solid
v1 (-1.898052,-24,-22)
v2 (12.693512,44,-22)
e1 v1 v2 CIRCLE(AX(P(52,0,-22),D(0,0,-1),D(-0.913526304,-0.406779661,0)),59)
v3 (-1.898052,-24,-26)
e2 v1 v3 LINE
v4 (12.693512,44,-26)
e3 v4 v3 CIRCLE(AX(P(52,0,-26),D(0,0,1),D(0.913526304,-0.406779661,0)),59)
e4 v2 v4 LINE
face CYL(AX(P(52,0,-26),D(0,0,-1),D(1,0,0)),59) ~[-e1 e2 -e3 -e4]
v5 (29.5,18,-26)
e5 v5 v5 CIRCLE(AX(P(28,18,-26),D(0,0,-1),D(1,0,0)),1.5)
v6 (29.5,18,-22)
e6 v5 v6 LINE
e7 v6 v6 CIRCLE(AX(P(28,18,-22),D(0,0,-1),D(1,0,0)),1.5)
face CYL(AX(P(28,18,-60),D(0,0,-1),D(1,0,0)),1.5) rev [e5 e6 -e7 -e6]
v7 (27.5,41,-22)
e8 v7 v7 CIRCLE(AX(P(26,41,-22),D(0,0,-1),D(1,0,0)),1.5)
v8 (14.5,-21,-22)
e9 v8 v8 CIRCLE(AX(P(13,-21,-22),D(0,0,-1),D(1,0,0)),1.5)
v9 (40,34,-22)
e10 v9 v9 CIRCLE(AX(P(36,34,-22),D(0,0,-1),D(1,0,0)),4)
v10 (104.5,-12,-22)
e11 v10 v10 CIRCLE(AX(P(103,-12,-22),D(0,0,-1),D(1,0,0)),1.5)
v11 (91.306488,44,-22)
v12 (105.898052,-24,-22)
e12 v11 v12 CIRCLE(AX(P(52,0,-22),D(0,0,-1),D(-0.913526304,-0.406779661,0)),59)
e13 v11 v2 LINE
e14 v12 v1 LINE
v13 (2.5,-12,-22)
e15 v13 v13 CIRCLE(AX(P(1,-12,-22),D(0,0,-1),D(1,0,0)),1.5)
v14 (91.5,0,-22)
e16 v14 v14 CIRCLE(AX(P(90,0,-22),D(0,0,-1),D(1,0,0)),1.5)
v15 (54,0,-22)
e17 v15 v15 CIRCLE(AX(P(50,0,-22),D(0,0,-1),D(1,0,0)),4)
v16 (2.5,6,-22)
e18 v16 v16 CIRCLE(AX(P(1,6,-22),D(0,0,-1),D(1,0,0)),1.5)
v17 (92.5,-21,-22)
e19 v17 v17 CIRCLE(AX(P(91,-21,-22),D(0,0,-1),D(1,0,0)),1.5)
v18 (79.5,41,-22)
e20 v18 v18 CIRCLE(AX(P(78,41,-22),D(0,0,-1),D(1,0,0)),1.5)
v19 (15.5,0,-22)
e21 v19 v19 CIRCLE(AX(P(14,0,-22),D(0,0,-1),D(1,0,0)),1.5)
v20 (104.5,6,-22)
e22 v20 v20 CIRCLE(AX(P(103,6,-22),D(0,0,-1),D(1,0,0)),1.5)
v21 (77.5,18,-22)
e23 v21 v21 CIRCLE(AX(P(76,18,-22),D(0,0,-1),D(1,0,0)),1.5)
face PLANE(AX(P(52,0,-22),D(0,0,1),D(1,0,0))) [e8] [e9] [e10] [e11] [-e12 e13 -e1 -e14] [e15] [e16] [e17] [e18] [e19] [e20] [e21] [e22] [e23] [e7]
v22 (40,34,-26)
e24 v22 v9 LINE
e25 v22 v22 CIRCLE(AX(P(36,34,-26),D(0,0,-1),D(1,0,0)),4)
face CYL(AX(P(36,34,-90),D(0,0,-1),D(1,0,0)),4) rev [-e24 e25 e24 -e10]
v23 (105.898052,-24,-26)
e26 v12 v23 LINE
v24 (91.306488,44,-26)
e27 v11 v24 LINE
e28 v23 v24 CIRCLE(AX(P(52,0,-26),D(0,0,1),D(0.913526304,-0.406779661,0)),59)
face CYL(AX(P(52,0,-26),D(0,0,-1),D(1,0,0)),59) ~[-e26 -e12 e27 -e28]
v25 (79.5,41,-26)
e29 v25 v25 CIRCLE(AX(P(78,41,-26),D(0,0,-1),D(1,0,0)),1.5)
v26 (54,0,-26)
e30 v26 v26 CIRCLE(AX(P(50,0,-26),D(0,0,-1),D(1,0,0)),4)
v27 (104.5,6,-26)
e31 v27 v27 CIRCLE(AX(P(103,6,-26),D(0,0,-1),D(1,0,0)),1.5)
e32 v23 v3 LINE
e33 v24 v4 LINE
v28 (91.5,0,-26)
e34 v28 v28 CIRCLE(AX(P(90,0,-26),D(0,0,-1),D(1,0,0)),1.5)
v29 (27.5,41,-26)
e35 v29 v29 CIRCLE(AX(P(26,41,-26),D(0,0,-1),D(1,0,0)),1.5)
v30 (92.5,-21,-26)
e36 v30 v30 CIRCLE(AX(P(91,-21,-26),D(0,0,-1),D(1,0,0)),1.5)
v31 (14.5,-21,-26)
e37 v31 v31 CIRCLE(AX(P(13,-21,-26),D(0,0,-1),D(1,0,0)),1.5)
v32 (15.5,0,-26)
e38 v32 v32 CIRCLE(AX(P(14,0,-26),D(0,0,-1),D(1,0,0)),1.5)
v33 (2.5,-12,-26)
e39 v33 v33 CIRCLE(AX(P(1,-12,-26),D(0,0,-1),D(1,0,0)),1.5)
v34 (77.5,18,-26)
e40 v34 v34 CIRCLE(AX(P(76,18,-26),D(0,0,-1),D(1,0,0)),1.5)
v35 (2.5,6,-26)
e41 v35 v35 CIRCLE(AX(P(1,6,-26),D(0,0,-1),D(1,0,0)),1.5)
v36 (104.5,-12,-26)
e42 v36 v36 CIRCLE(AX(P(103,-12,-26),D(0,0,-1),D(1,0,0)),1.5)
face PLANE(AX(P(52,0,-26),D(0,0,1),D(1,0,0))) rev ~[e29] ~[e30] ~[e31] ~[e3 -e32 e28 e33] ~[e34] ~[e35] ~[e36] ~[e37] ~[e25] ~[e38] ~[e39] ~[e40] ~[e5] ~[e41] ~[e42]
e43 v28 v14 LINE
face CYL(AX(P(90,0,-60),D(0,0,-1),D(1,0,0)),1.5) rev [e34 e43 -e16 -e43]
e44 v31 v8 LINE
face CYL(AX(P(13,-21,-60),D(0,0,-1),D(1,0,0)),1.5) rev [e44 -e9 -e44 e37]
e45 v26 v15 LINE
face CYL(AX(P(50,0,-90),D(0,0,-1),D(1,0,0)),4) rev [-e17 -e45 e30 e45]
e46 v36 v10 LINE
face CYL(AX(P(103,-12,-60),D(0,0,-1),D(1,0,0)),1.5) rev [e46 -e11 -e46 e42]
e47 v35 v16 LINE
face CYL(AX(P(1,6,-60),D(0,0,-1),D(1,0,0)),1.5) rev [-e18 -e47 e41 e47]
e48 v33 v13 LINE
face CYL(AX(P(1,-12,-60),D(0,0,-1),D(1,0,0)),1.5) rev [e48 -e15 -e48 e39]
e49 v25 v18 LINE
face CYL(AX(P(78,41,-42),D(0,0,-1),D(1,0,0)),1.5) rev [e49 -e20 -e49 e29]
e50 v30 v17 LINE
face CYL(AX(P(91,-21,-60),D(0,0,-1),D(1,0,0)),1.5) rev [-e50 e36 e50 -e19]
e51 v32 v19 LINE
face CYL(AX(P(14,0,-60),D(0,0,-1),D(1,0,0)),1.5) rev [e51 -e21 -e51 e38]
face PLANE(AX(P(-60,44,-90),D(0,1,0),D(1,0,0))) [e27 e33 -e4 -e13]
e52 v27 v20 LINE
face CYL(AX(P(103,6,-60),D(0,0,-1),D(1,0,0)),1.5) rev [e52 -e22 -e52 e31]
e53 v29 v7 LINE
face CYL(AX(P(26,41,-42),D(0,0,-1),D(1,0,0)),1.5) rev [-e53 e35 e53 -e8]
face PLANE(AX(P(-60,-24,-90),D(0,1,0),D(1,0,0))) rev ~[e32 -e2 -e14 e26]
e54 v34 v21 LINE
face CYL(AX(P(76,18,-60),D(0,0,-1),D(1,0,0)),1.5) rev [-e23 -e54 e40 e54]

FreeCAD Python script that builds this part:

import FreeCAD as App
import Part
import Sketcher
from FreeCAD import Vector
Q = App.Units.Quantity

doc = App.newDocument("Part")
body = doc.addObject("PartDesign::Body", "Body")

# Sketch on XY plane
sketch1 = doc.addObject("Sketcher::SketchObject", "Sketch")
body.addObject(sketch1)
sketch1.AttachmentSupport = (doc.XY_Plane, [""])
sketch1.MapMode = "FlatFace"
sketch1.AttachmentOffset = App.Placement(Vector(0, 0, -60), App.Rotation())
sketch1.addGeometry(Part.Circle(Vector(14, 0, 0), Vector(0, 0, 1), 1.5), False)
sketch1.addConstraint([
    Sketcher.Constraint("PointOnObject", 0, 3, -1),
    Sketcher.Constraint("Diameter", 0, Q("3 mm")),
    Sketcher.Constraint("DistanceX", -1, 1, 0, 3, Q("14 mm")),
])
pad1 = doc.addObject("PartDesign::Pad", "Pad")
body.addObject(pad1)
pad1.Profile = sketch1
pad1.Length = 100
body2 = doc.addObject("PartDesign::Body", "Body001")
body2.AllowCompound = True

# Sketch on XY plane
sketch2 = doc.addObject("Sketcher::SketchObject", "Sketch001")
body2.addObject(sketch2)
sketch2.AttachmentSupport = (doc.getObject("XY_Plane001"), [""])
sketch2.MapMode = "FlatFace"
sketch2.AttachmentOffset = App.Placement(Vector(0, 0, -60), App.Rotation())
sketch2.addGeometry(Part.Circle(Vector(90, 0, 0), Vector(0, 0, 1), 1.5), False)
sketch2.addConstraint([
    Sketcher.Constraint("PointOnObject", 0, 3, -1),
    Sketcher.Constraint("Diameter", 0, Q("3 mm")),
    Sketcher.Constraint("DistanceX", -1, 1, 0, 3, Q("90 mm")),
])
pad2 = doc.addObject("PartDesign::Pad", "Pad001")
body2.addObject(pad2)
pad2.Profile = sketch2
pad2.Length = 100
doc.recompute()

boolean = doc.addObject("PartDesign::Boolean", "Boolean")
body2.addObject(boolean)
boolean.Type = "Fuse"
boolean.addObjects([body])
body3 = doc.addObject("PartDesign::Body", "Body002")

# Sketch on XY plane
sketch3 = doc.addObject("Sketcher::SketchObject", "Sketch002")
body3.addObject(sketch3)
sketch3.AttachmentSupport = (doc.getObject("XY_Plane002"), [""])
sketch3.MapMode = "FlatFace"
sketch3.AttachmentOffset = App.Placement(Vector(0, 0, -42), App.Rotation())
sketch3.addGeometry(Part.Circle(Vector(78, 41, 0), Vector(0, 0, 1), 1.5), False)
sketch3.addConstraint([
    Sketcher.Constraint("Diameter", 0, Q("3 mm")),
    Sketcher.Constraint("DistanceX", -1, 1, 0, 3, Q("78 mm")),
    Sketcher.Constraint("DistanceY", -1, 1, 0, 3, Q("41 mm")),
])
pad3 = doc.addObject("PartDesign::Pad", "Pad002")
body3.addObject(pad3)
pad3.Profile = sketch3
pad3.Length = 32
body4 = doc.addObject("PartDesign::Body", "Body003")
body4.AllowCompound = True

# Sketch on XY plane
sketch4 = doc.addObject("Sketcher::SketchObject", "Sketch003")
body4.addObject(sketch4)
sketch4.AttachmentSupport = (doc.getObject("XY_Plane003"), [""])
sketch4.MapMode = "FlatFace"
sketch4.AttachmentOffset = App.Placement(Vector(0, 0, -42), App.Rotation())
sketch4.addGeometry(Part.Circle(Vector(26, 41, 0), Vector(0, 0, 1), 1.5), False)
sketch4.addConstraint([
    Sketcher.Constraint("Diameter", 0, Q("3 mm")),
    Sketcher.Constraint("DistanceX", -1, 1, 0, 3, Q("26 mm")),
    Sketcher.Constraint("DistanceY", -1, 1, 0, 3, Q("41 mm")),
])
pad4 = doc.addObject("PartDesign::Pad", "Pad003")
body4.addObject(pad4)
pad4.Profile = sketch4
pad4.Length = 32
doc.recompute()

boolean2 = doc.addObject("PartDesign::Boolean", "Boolean001")
body4.addObject(boolean2)
boolean2.Type = "Fuse"
boolean2.addObjects([body3])
body5 = doc.addObject("PartDesign::Body", "Body004")

# Sketch on XY plane
sketch5 = doc.addObject("Sketcher::SketchObject", "Sketch004")
body5.addObject(sketch5)
sketch5.AttachmentSupport = (doc.getObject("XY_Plane004"), [""])
sketch5.MapMode = "FlatFace"
sketch5.AttachmentOffset = App.Placement(Vector(0, 0, -90), App.Rotation())
sketch5.addGeometry([
    Part.LineSegment(Vector(-60, 144, 0), Vector(-60, 44, 0)),
    Part.LineSegment(Vector(-60, 44, 0), Vector(140, 44, 0)),
    Part.LineSegment(Vector(140, 44, 0), Vector(140, 144, 0)),
    Part.LineSegment(Vector(140, 144, 0), Vector(-60, 144, 0)),
], False)
sketch5.addConstraint([
    Sketcher.Constraint("Coincident", 0, 2, 1, 1),
    Sketcher.Constraint("Coincident", 1, 2, 2, 1),
    Sketcher.Constraint("Coincident", 2, 2, 3, 1),
    Sketcher.Constraint("Coincident", 3, 2, 0, 1),
    Sketcher.Constraint("Vertical", 0),
    Sketcher.Constraint("Horizontal", 1),
    Sketcher.Constraint("Vertical", 2),
    Sketcher.Constraint("Horizontal", 3),
    Sketcher.Constraint("DistanceX", 1, 1, 1, 2, Q("200 mm")),
    Sketcher.Constraint("DistanceY", 0, 2, 0, 1, Q("100 mm")),
    Sketcher.Constraint("DistanceX", 0, 2, -1, 1, Q("60 mm")),
    Sketcher.Constraint("DistanceY", -1, 1, 0, 2, Q("44 mm")),
])
pad5 = doc.addObject("PartDesign::Pad", "Pad004")
body5.addObject(pad5)
pad5.Profile = sketch5
pad5.Length = 100
body6 = doc.addObject("PartDesign::Body", "Body005")

# Sketch on XY plane
sketch6 = doc.addObject("Sketcher::SketchObject", "Sketch005")
body6.addObject(sketch6)
sketch6.AttachmentSupport = (doc.getObject("XY_Plane005"), [""])
sketch6.MapMode = "FlatFace"
sketch6.AttachmentOffset = App.Placement(Vector(0, 0, -90), App.Rotation())
sketch6.addGeometry([
    Part.LineSegment(Vector(-60, -24, 0), Vector(-60, -124, 0)),
    Part.LineSegment(Vector(-60, -124, 0), Vector(140, -124, 0)),
    Part.LineSegment(Vector(140, -124, 0), Vector(140, -24, 0)),
    Part.LineSegment(Vector(140, -24, 0), Vector(-60, -24, 0)),
], False)
sketch6.addConstraint([
    Sketcher.Constraint("Coincident", 0, 2, 1, 1),
    Sketcher.Constraint("Coincident", 1, 2, 2, 1),
    Sketcher.Constraint("Coincident", 2, 2, 3, 1),
    Sketcher.Constraint("Coincident", 3, 2, 0, 1),
    Sketcher.Constraint("Vertical", 0),
    Sketcher.Constraint("Horizontal", 1),
    Sketcher.Constraint("Vertical", 2),
    Sketcher.Constraint("Horizontal", 3),
    Sketcher.Constraint("DistanceX", 1, 1, 1, 2, Q("200 mm")),
    Sketcher.Constraint("DistanceY", 0, 2, 0, 1, Q("100 mm")),
    Sketcher.Constraint("DistanceX", 0, 2, -1, 1, Q("60 mm")),
    Sketcher.Constraint("DistanceY", 0, 2, -1, 1, Q("124 mm")),
])
pad6 = doc.addObject("PartDesign::Pad", "Pad005")
body6.addObject(pad6)
pad6.Profile = sketch6
pad6.Length = 100
body7 = doc.addObject("PartDesign::Body", "Body006")

# Sketch on XY plane
sketch7 = doc.addObject("Sketcher::SketchObject", "Sketch006")
body7.addObject(sketch7)
sketch7.AttachmentSupport = (doc.getObject("XY_Plane006"), [""])
sketch7.MapMode = "FlatFace"
sketch7.AttachmentOffset = App.Placement(Vector(0, 0, -90), App.Rotation())
sketch7.addGeometry(Part.Circle(Vector(-36, 34, 0), Vector(0, 0, 1), 4), False)
sketch7.addConstraint([
    Sketcher.Constraint("Diameter", 0, Q("8 mm")),
    Sketcher.Constraint("DistanceX", 0, 3, -1, 1, Q("36 mm")),
    Sketcher.Constraint("DistanceY", -1, 1, 0, 3, Q("34 mm")),
])
pad7 = doc.addObject("PartDesign::Pad", "Pad006")
body7.addObject(pad7)
pad7.Profile = sketch7
pad7.Length = 100
body8 = doc.addObject("PartDesign::Body", "Body007")

# Sketch on XY plane
sketch8 = doc.addObject("Sketcher::SketchObject", "Sketch007")
body8.addObject(sketch8)
sketch8.AttachmentSupport = (doc.getObject("XY_Plane007"), [""])
sketch8.MapMode = "FlatFace"
sketch8.AttachmentOffset = App.Placement(Vector(0, 0, -90), App.Rotation())
sketch8.addGeometry(Part.Circle(Vector(-36, -34, 0), Vector(0, 0, 1), 4), False)
sketch8.addConstraint([
    Sketcher.Constraint("Diameter", 0, Q("8 mm")),
    Sketcher.Constraint("DistanceX", 0, 3, -1, 1, Q("36 mm")),
    Sketcher.Constraint("DistanceY", 0, 3, -1, 1, Q("34 mm")),
])
pad8 = doc.addObject("PartDesign::Pad", "Pad007")
body8.addObject(pad8)
pad8.Profile = sketch8
pad8.Length = 100
body9 = doc.addObject("PartDesign::Body", "Body008")

# Sketch on XY plane
sketch9 = doc.addObject("Sketcher::SketchObject", "Sketch008")
body9.addObject(sketch9)
sketch9.AttachmentSupport = (doc.getObject("XY_Plane008"), [""])
sketch9.MapMode = "FlatFace"
sketch9.AttachmentOffset = App.Placement(Vector(0, 0, -90), App.Rotation())
sketch9.addGeometry(Part.Circle(Vector(50, 0, 0), Vector(0, 0, 1), 4), False)
sketch9.addConstraint([
    Sketcher.Constraint("PointOnObject", 0, 3, -1),
    Sketcher.Constraint("Diameter", 0, Q("8 mm")),
    Sketcher.Constraint("DistanceX", -1, 1, 0, 3, Q("50 mm")),
])
pad9 = doc.addObject("PartDesign::Pad", "Pad008")
body9.addObject(pad9)
pad9.Profile = sketch9
pad9.Length = 100
body10 = doc.addObject("PartDesign::Body", "Body009")

# Sketch on XY plane
sketch10 = doc.addObject("Sketcher::SketchObject", "Sketch009")
body10.addObject(sketch10)
sketch10.AttachmentSupport = (doc.getObject("XY_Plane009"), [""])
sketch10.MapMode = "FlatFace"
sketch10.AttachmentOffset = App.Placement(Vector(0, 0, -90), App.Rotation())
sketch10.addGeometry(Part.Circle(Vector(36, 34, 0), Vector(0, 0, 1), 4), False)
sketch10.addConstraint([
    Sketcher.Constraint("Diameter", 0, Q("8 mm")),
    Sketcher.Constraint("DistanceX", -1, 1, 0, 3, Q("36 mm")),
    Sketcher.Constraint("DistanceY", -1, 1, 0, 3, Q("34 mm")),
])
pad10 = doc.addObject("PartDesign::Pad", "Pad009")
body10.addObject(pad10)
pad10.Profile = sketch10
pad10.Length = 100
body11 = doc.addObject("PartDesign::Body", "Body010")

# Sketch on XY plane
sketch11 = doc.addObject("Sketcher::SketchObject", "Sketch010")
body11.addObject(sketch11)
sketch11.AttachmentSupport = (doc.getObject("XY_Plane010"), [""])
sketch11.MapMode = "FlatFace"
sketch11.AttachmentOffset = App.Placement(Vector(0, 0, -90), App.Rotation())
sketch11.addGeometry(Part.Circle(Vector(36, -34, 0), Vector(0, 0, 1), 4), False)
sketch11.addConstraint([
    Sketcher.Constraint("Diameter", 0, Q("8 mm")),
    Sketcher.Constraint("DistanceX", -1, 1, 0, 3, Q("36 mm")),
    Sketcher.Constraint("DistanceY", 0, 3, -1, 1, Q("34 mm")),
])
pad11 = doc.addObject("PartDesign::Pad", "Pad010")
body11.addObject(pad11)
pad11.Profile = sketch11
pad11.Length = 100
body12 = doc.addObject("PartDesign::Body", "Body011")
body12.AllowCompound = True

# Sketch on XY plane
sketch12 = doc.addObject("Sketcher::SketchObject", "Sketch011")
body12.addObject(sketch12)
sketch12.AttachmentSupport = (doc.getObject("XY_Plane011"), [""])
sketch12.MapMode = "FlatFace"
sketch12.AttachmentOffset = App.Placement(Vector(0, 0, -90), App.Rotation())
sketch12.addGeometry(Part.Circle(Vector(-50, 0, 0), Vector(0, 0, 1), 4), False)
sketch12.addConstraint([
    Sketcher.Constraint("PointOnObject", 0, 3, -1),
    Sketcher.Constraint("Diameter", 0, Q("8 mm")),
    Sketcher.Constraint("DistanceX", 0, 3, -1, 1, Q("50 mm")),
])
pad12 = doc.addObject("PartDesign::Pad", "Pad011")
body12.addObject(pad12)
pad12.Profile = sketch12
pad12.Length = 100
doc.recompute()

boolean3 = doc.addObject("PartDesign::Boolean", "Boolean002")
body12.addObject(boolean3)
boolean3.Type = "Fuse"
boolean3.addObjects([body7])
doc.recompute()

boolean4 = doc.addObject("PartDesign::Boolean", "Boolean003")
body12.addObject(boolean4)
boolean4.Type = "Fuse"
boolean4.addObjects([body8])
doc.recompute()

boolean5 = doc.addObject("PartDesign::Boolean", "Boolean004")
body12.addObject(boolean5)
boolean5.Type = "Fuse"
boolean5.addObjects([body9])
doc.recompute()

boolean6 = doc.addObject("PartDesign::Boolean", "Boolean005")
body12.addObject(boolean6)
boolean6.Type = "Fuse"
boolean6.addObjects([body10])
doc.recompute()

boolean7 = doc.addObject("PartDesign::Boolean", "Boolean006")
body12.addObject(boolean7)
boolean7.Type = "Fuse"
boolean7.addObjects([body11])
body13 = doc.addObject("PartDesign::Body", "Body012")

# Sketch on XY plane
sketch13 = doc.addObject("Sketcher::SketchObject", "Sketch012")
body13.addObject(sketch13)
sketch13.AttachmentSupport = (doc.getObject("XY_Plane012"), [""])
sketch13.MapMode = "FlatFace"
sketch13.AttachmentOffset = App.Placement(Vector(0, 0, -60), App.Rotation())
sketch13.addGeometry(Part.Circle(Vector(103, 6, 0), Vector(0, 0, 1), 1.5), False)
sketch13.addConstraint([
    Sketcher.Constraint("Diameter", 0, Q("3 mm")),
    Sketcher.Constraint("DistanceX", -1, 1, 0, 3, Q("103 mm")),
    Sketcher.Constraint("DistanceY", -1, 1, 0, 3, Q("6 mm")),
])
pad13 = doc.addObject("PartDesign::Pad", "Pad012")
body13.addObject(pad13)
pad13.Profile = sketch13
pad13.Length = 100
body14 = doc.addObject("PartDesign::Body", "Body013")

# Sketch on XY plane
sketch14 = doc.addObject("Sketcher::SketchObject", "Sketch013")
body14.addObject(sketch14)
sketch14.AttachmentSupport = (doc.getObject("XY_Plane013"), [""])
sketch14.MapMode = "FlatFace"
sketch14.AttachmentOffset = App.Placement(Vector(0, 0, -60), App.Rotation())
sketch14.addGeometry(Part.Circle(Vector(76, 18, 0), Vector(0, 0, 1), 1.5), False)
sketch14.addConstraint([
    Sketcher.Constraint("Diameter", 0, Q("3 mm")),
    Sketcher.Constraint("DistanceX", -1, 1, 0, 3, Q("76 mm")),
    Sketcher.Constraint("DistanceY", -1, 1, 0, 3, Q("18 mm")),
])
pad14 = doc.addObject("PartDesign::Pad", "Pad013")
body14.addObject(pad14)
pad14.Profile = sketch14
pad14.Length = 100
body15 = doc.addObject("PartDesign::Body", "Body014")

# Sketch on XY plane
sketch15 = doc.addObject("Sketcher::SketchObject", "Sketch014")
body15.addObject(sketch15)
sketch15.AttachmentSupport = (doc.getObject("XY_Plane014"), [""])
sketch15.MapMode = "FlatFace"
sketch15.AttachmentOffset = App.Placement(Vector(0, 0, -60), App.Rotation())
sketch15.addGeometry(Part.Circle(Vector(91, -21, 0), Vector(0, 0, 1), 1.5), False)
sketch15.addConstraint([
    Sketcher.Constraint("Diameter", 0, Q("3 mm")),
    Sketcher.Constraint("DistanceX", -1, 1, 0, 3, Q("91 mm")),
    Sketcher.Constraint("DistanceY", 0, 3, -1, 1, Q("21 mm")),
])
pad15 = doc.addObject("PartDesign::Pad", "Pad014")
body15.addObject(pad15)
pad15.Profile = sketch15
pad15.Length = 100
body16 = doc.addObject("PartDesign::Body", "Body015")

# Sketch on XY plane
sketch16 = doc.addObject("Sketcher::SketchObject", "Sketch015")
body16.addObject(sketch16)
sketch16.AttachmentSupport = (doc.getObject("XY_Plane015"), [""])
sketch16.MapMode = "FlatFace"
sketch16.AttachmentOffset = App.Placement(Vector(0, 0, -60), App.Rotation())
sketch16.addGeometry(Part.Circle(Vector(13, -21, 0), Vector(0, 0, 1), 1.5), False)
sketch16.addConstraint([
    Sketcher.Constraint("Diameter", 0, Q("3 mm")),
    Sketcher.Constraint("DistanceX", -1, 1, 0, 3, Q("13 mm")),
    Sketcher.Constraint("DistanceY", 0, 3, -1, 1, Q("21 mm")),
])
pad16 = doc.addObject("PartDesign::Pad", "Pad015")
body16.addObject(pad16)
pad16.Profile = sketch16
pad16.Length = 100
body17 = doc.addObject("PartDesign::Body", "Body016")

# Sketch on XY plane
sketch17 = doc.addObject("Sketcher::SketchObject", "Sketch016")
body17.addObject(sketch17)
sketch17.AttachmentSupport = (doc.getObject("XY_Plane016"), [""])
sketch17.MapMode = "FlatFace"
sketch17.AttachmentOffset = App.Placement(Vector(0, 0, -60), App.Rotation())
sketch17.addGeometry(Part.Circle(Vector(28, 18, 0), Vector(0, 0, 1), 1.5), False)
sketch17.addConstraint([
    Sketcher.Constraint("Diameter", 0, Q("3 mm")),
    Sketcher.Constraint("DistanceX", -1, 1, 0, 3, Q("28 mm")),
    Sketcher.Constraint("DistanceY", -1, 1, 0, 3, Q("18 mm")),
])
pad17 = doc.addObject("PartDesign::Pad", "Pad016")
body17.addObject(pad17)
pad17.Profile = sketch17
pad17.Length = 100
body18 = doc.addObject("PartDesign::Body", "Body017")

# Sketch on XY plane
sketch18 = doc.addObject("Sketcher::SketchObject", "Sketch017")
body18.addObject(sketch18)
sketch18.AttachmentSupport = (doc.getObject("XY_Plane017"), [""])
sketch18.MapMode = "FlatFace"
sketch18.AttachmentOffset = App.Placement(Vector(0, 0, -60), App.Rotation())
sketch18.addGeometry(Part.Circle(Vector(1, -12, 0), Vector(0, 0, 1), 1.5), False)
sketch18.addConstraint([
    Sketcher.Constraint("Diameter", 0, Q("3 mm")),
    Sketcher.Constraint("DistanceX", -1, 1, 0, 3, Q("1 mm")),
    Sketcher.Constraint("DistanceY", 0, 3, -1, 1, Q("12 mm")),
])
pad18 = doc.addObject("PartDesign::Pad", "Pad017")
body18.addObject(pad18)
pad18.Profile = sketch18
pad18.Length = 100
body19 = doc.addObject("PartDesign::Body", "Body018")

# Sketch on XY plane
sketch19 = doc.addObject("Sketcher::SketchObject", "Sketch018")
body19.addObject(sketch19)
sketch19.AttachmentSupport = (doc.getObject("XY_Plane018"), [""])
sketch19.MapMode = "FlatFace"
sketch19.AttachmentOffset = App.Placement(Vector(0, 0, -60), App.Rotation())
sketch19.addGeometry(Part.Circle(Vector(1, 6, 0), Vector(0, 0, 1), 1.5), False)
sketch19.addConstraint([
    Sketcher.Constraint("Diameter", 0, Q("3 mm")),
    Sketcher.Constraint("DistanceX", -1, 1, 0, 3, Q("1 mm")),
    Sketcher.Constraint("DistanceY", -1, 1, 0, 3, Q("6 mm")),
])
pad19 = doc.addObject("PartDesign::Pad", "Pad018")
body19.addObject(pad19)
pad19.Profile = sketch19
pad19.Length = 100
body20 = doc.addObject("PartDesign::Body", "Body019")
body20.AllowCompound = True

# Sketch on XY plane
sketch20 = doc.addObject("Sketcher::SketchObject", "Sketch019")
body20.addObject(sketch20)
sketch20.AttachmentSupport = (doc.getObject("XY_Plane019"), [""])
sketch20.MapMode = "FlatFace"
sketch20.AttachmentOffset = App.Placement(Vector(0, 0, -60), App.Rotation())
sketch20.addGeometry(Part.Circle(Vector(103, -12, 0), Vector(0, 0, 1), 1.5), False)
sketch20.addConstraint([
    Sketcher.Constraint("Diameter", 0, Q("3 mm")),
    Sketcher.Constraint("DistanceX", -1, 1, 0, 3, Q("103 mm")),
    Sketcher.Constraint("DistanceY", 0, 3, -1, 1, Q("12 mm")),
])
pad20 = doc.addObject("PartDesign::Pad", "Pad019")
body20.addObject(pad20)
pad20.Profile = sketch20
pad20.Length = 100
doc.recompute()

boolean8 = doc.addObject("PartDesign::Boolean", "Boolean007")
body20.addObject(boolean8)
boolean8.Type = "Fuse"
boolean8.addObjects([body13])
doc.recompute()

boolean9 = doc.addObject("PartDesign::Boolean", "Boolean008")
body20.addObject(boolean9)
boolean9.Type = "Fuse"
boolean9.addObjects([body14])
doc.recompute()

boolean10 = doc.addObject("PartDesign::Boolean", "Boolean009")
body20.addObject(boolean10)
boolean10.Type = "Fuse"
boolean10.addObjects([body15])
doc.recompute()

boolean11 = doc.addObject("PartDesign::Boolean", "Boolean010")
body20.addObject(boolean11)
boolean11.Type = "Fuse"
boolean11.addObjects([body16])
doc.recompute()

boolean12 = doc.addObject("PartDesign::Boolean", "Boolean011")
body20.addObject(boolean12)
boolean12.Type = "Fuse"
boolean12.addObjects([body17])
doc.recompute()

boolean13 = doc.addObject("PartDesign::Boolean", "Boolean012")
body20.addObject(boolean13)
boolean13.Type = "Fuse"
boolean13.addObjects([body18])
doc.recompute()

boolean14 = doc.addObject("PartDesign::Boolean", "Boolean013")
body20.addObject(boolean14)
boolean14.Type = "Fuse"
boolean14.addObjects([body19])
body21 = doc.addObject("PartDesign::Body", "Body020")

# Sketch on XY plane
sketch21 = doc.addObject("Sketcher::SketchObject", "Sketch020")
body21.addObject(sketch21)
sketch21.AttachmentSupport = (doc.getObject("XY_Plane020"), [""])
sketch21.MapMode = "FlatFace"
sketch21.AttachmentOffset = App.Placement(Vector(0, 0, -26), App.Rotation())
sketch21.addGeometry(Part.Circle(Vector(52, 0, 0), Vector(0, 0, 1), 59), False)
sketch21.addConstraint([
    Sketcher.Constraint("PointOnObject", 0, 3, -1),
    Sketcher.Constraint("Diameter", 0, Q("118 mm")),
    Sketcher.Constraint("DistanceX", -1, 1, 0, 3, Q("52 mm")),
])
pad21 = doc.addObject("PartDesign::Pad", "Pad020")
body21.addObject(pad21)
pad21.Profile = sketch21
pad21.Length = 4
doc.recompute()

boolean15 = doc.addObject("PartDesign::Boolean", "Boolean014")
body21.addObject(boolean15)
boolean15.Type = "Cut"
boolean15.addObjects([body20])
doc.recompute()

boolean16 = doc.addObject("PartDesign::Boolean", "Boolean015")
body21.addObject(boolean16)
boolean16.Type = "Cut"
boolean16.addObjects([body12])
doc.recompute()

boolean17 = doc.addObject("PartDesign::Boolean", "Boolean016")
body21.addObject(boolean17)
boolean17.Type = "Cut"
boolean17.addObjects([body6])
doc.recompute()

boolean18 = doc.addObject("PartDesign::Boolean", "Boolean017")
body21.addObject(boolean18)
boolean18.Type = "Cut"
boolean18.addObjects([body5])
doc.recompute()

boolean19 = doc.addObject("PartDesign::Boolean", "Boolean018")
body21.addObject(boolean19)
boolean19.Type = "Cut"
boolean19.addObjects([body4])
doc.recompute()

boolean20 = doc.addObject("PartDesign::Boolean", "Boolean019")
body21.addObject(boolean20)
boolean20.Type = "Cut"
boolean20.addObjects([body2])

doc.recompute()
